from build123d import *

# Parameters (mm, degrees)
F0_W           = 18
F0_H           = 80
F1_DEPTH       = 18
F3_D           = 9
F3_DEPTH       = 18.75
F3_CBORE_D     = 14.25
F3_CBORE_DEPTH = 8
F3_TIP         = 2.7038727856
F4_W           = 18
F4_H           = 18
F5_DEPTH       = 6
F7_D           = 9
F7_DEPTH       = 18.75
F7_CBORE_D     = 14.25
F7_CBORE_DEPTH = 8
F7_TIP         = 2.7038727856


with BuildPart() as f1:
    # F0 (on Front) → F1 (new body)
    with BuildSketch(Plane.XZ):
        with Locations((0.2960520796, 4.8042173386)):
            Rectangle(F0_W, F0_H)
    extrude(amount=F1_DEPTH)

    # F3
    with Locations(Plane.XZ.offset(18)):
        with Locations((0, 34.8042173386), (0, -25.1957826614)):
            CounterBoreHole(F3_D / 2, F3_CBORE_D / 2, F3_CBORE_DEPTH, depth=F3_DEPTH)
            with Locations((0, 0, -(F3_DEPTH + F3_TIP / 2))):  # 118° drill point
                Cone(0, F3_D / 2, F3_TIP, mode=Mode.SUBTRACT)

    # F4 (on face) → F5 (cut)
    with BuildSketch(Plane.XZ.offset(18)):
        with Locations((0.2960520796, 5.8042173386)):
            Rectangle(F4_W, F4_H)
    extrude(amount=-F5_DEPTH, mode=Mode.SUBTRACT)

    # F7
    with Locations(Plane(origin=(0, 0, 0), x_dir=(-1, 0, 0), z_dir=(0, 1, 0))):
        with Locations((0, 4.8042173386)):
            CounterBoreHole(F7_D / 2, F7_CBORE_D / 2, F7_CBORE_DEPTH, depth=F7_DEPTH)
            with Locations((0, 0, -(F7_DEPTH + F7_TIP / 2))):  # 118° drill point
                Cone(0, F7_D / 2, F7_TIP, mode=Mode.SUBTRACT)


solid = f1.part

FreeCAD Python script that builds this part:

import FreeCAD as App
import Part
import Sketcher


def add_polygon(sketch, points):
    """Adds a closed chain of lines whose ends are joined by coincident constraints."""
    first, n = sketch.GeometryCount, len(points)
    for a, b in zip(points, points[1:] + points[:1]):
        sketch.addGeometry(Part.LineSegment(App.Vector(*a, 0), App.Vector(*b, 0)), False)
    for i in range(n):
        sketch.addConstraint(Sketcher.Constraint("Coincident", first + i, 2, first + (i + 1) % n, 1))

doc = App.newDocument("Part")
params = doc.addObject("Spreadsheet::Sheet", "Params")
for row, (alias, value) in enumerate([
    ("sketch1_width", "18 mm"),
    ("sketch1_height", "80 mm"),
    ("pad1_length", "18 mm"),
    ("sketch2_diameter", "9 mm"),
    ("hole_diameter", "9 mm"),
    ("hole_depth", "18.75 mm"),
    ("hole_cbore_diameter", "14.25 mm"),
    ("hole_cbore_depth", "8 mm"),
    ("sketch3_width", "18 mm"),
    ("pocket1_length", "6 mm"),
    ("sketch4_diameter", "9 mm"),
    ("hole2_diameter", "9 mm"),
    ("hole2_depth", "18.75 mm"),
    ("hole2_cbore_diameter", "14.25 mm"),
    ("hole2_cbore_depth", "8 mm"),
], start=1):
    params.set(f"A{row}", alias)
    params.set(f"B{row}", "=" + value)
    params.setAlias(f"B{row}", alias)

body = doc.addObject("PartDesign::Body", "Body")

# Sketch on XZ plane
sketch1 = body.newObject("Sketcher::SketchObject", "Sketch")
sketch1.AttachmentSupport = (doc.getObject("XZ_Plane"), [""])
sketch1.MapMode = "FlatFace"
add_polygon(sketch1, [(-9, 45), (-9, -35), (9, -35), (9, 45)])  # lines 0-3
sketch1.addConstraint(Sketcher.Constraint("Vertical", 0))
sketch1.addConstraint(Sketcher.Constraint("Horizontal", 1))
sketch1.addConstraint(Sketcher.Constraint("Vertical", 2))
sketch1.addConstraint(Sketcher.Constraint("Horizontal", 3))
sketch1.addConstraint(Sketcher.Constraint("DistanceX", 1, 1, 1, 2, 18.0))
sketch1.addConstraint(Sketcher.Constraint("DistanceY", 0, 2, 0, 1, 80.0))
sketch1.addConstraint(Sketcher.Constraint("DistanceX", 0, 2, -1, 1, 8.703948))
sketch1.addConstraint(Sketcher.Constraint("DistanceY", 0, 2, -1, 1, 35.195783))
sketch1.setExpression("Constraints[8]", "Params.sketch1_width")
sketch1.setExpression("Constraints[9]", "Params.sketch1_height")
pad1 = body.newObject("PartDesign::Pad", "Pad")
pad1.Profile = sketch1
pad1.setExpression("Length", "Params.pad1_length")

# Sketch on XZ plane
sketch2 = body.newObject("Sketcher::SketchObject", "Sketch001")
sketch2.AttachmentSupport = (doc.getObject("XZ_Plane"), [""])
sketch2.MapMode = "FlatFace"
sketch2.AttachmentOffset = App.Placement(App.Vector(0, 0, 18), App.Rotation())
sketch2.addGeometry(Part.Circle(App.Vector(0, 34.8, 0), App.Vector(0, 0, 1), 4.5), False)
sketch2.addGeometry(Part.Circle(App.Vector(0, -25.2, 0), App.Vector(0, 0, 1), 4.5), False)
sketch2.addConstraint(Sketcher.Constraint("Equal", 0, 1))
sketch2.addConstraint(Sketcher.Constraint("PointOnObject", 0, 3, -2))
sketch2.addConstraint(Sketcher.Constraint("PointOnObject", 1, 3, -2))
sketch2.addConstraint(Sketcher.Constraint("Diameter", 0, 9.0))
sketch2.addConstraint(Sketcher.Constraint("DistanceY", 1, 3, 0, 3, 60.0))
sketch2.addConstraint(Sketcher.Constraint("DistanceY", -1, 1, 0, 3, 34.804217))
sketch2.setExpression("Constraints[3]", "Params.sketch2_diameter")
doc.recompute()
hole = body.newObject("PartDesign::Hole", "Hole")
hole.Profile = sketch2
hole.ThreadType = "None"
hole.setExpression("Diameter", "Params.hole_diameter")
hole.DepthType = "Dimension"
hole.setExpression("Depth", "Params.hole_depth")
hole.DrillPoint = "Angled"
hole.DrillPointAngle = 118
hole.HoleCutType = "Counterbore"
hole.setExpression("HoleCutDiameter", "Params.hole_cbore_diameter")
hole.setExpression("HoleCutDepth", "Params.hole_cbore_depth")

# Sketch on XZ plane
sketch3 = body.newObject("Sketcher::SketchObject", "Sketch002")
sketch3.AttachmentSupport = (doc.getObject("XZ_Plane"), [""])
sketch3.MapMode = "FlatFace"
sketch3.AttachmentOffset = App.Placement(App.Vector(0, 0, 18), App.Rotation())
add_polygon(sketch3, [(-9, 15), (-9, -3), (9, -3), (9, 15)])  # lines 0-3
sketch3.addConstraint(Sketcher.Constraint("Vertical", 0))
sketch3.addConstraint(Sketcher.Constraint("Horizontal", 1))
sketch3.addConstraint(Sketcher.Constraint("Vertical", 2))
sketch3.addConstraint(Sketcher.Constraint("Horizontal", 3))
sketch3.addConstraint(Sketcher.Constraint("Equal", 3, 0))
sketch3.addConstraint(Sketcher.Constraint("DistanceX", 1, 1, 1, 2, 18.0))
sketch3.addConstraint(Sketcher.Constraint("DistanceX", 0, 2, -1, 1, 8.703948))
sketch3.addConstraint(Sketcher.Constraint("DistanceY", 0, 2, -1, 1, 3.195783))
sketch3.setExpression("Constraints[9]", "Params.sketch3_width")
pocket1 = body.newObject("PartDesign::Pocket", "Pocket")
pocket1.Profile = sketch3
pocket1.setExpression("Length", "Params.pocket1_length")

# Sketch on XZ plane
sketch4 = body.newObject("Sketcher::SketchObject", "Sketch003")
sketch4.AttachmentSupport = (doc.getObject("XZ_Plane"), [""])
sketch4.MapMode = "FlatFace"
sketch4.addGeometry(Part.Circle(App.Vector(0, 4.8, 0), App.Vector(0, 0, 1), 4.5), False)
sketch4.addConstraint(Sketcher.Constraint("PointOnObject", 0, 3, -2))
sketch4.addConstraint(Sketcher.Constraint("Diameter", 0, 9.0))
sketch4.addConstraint(Sketcher.Constraint("DistanceY", -1, 1, 0, 3, 4.804217))
sketch4.setExpression("Constraints[1]", "Params.sketch4_diameter")
doc.recompute()
hole2 = body.newObject("PartDesign::Hole", "Hole001")
hole2.Profile = sketch4
hole2.ThreadType = "None"
hole2.setExpression("Diameter", "Params.hole2_diameter")
hole2.DepthType = "Dimension"
hole2.setExpression("Depth", "Params.hole2_depth")
hole2.DrillPoint = "Angled"
hole2.DrillPointAngle = 118
hole2.HoleCutType = "Counterbore"
hole2.setExpression("HoleCutDiameter", "Params.hole2_cbore_diameter")
hole2.setExpression("HoleCutDepth", "Params.hole2_cbore_depth")
hole2.Reversed = True

doc.recompute()
